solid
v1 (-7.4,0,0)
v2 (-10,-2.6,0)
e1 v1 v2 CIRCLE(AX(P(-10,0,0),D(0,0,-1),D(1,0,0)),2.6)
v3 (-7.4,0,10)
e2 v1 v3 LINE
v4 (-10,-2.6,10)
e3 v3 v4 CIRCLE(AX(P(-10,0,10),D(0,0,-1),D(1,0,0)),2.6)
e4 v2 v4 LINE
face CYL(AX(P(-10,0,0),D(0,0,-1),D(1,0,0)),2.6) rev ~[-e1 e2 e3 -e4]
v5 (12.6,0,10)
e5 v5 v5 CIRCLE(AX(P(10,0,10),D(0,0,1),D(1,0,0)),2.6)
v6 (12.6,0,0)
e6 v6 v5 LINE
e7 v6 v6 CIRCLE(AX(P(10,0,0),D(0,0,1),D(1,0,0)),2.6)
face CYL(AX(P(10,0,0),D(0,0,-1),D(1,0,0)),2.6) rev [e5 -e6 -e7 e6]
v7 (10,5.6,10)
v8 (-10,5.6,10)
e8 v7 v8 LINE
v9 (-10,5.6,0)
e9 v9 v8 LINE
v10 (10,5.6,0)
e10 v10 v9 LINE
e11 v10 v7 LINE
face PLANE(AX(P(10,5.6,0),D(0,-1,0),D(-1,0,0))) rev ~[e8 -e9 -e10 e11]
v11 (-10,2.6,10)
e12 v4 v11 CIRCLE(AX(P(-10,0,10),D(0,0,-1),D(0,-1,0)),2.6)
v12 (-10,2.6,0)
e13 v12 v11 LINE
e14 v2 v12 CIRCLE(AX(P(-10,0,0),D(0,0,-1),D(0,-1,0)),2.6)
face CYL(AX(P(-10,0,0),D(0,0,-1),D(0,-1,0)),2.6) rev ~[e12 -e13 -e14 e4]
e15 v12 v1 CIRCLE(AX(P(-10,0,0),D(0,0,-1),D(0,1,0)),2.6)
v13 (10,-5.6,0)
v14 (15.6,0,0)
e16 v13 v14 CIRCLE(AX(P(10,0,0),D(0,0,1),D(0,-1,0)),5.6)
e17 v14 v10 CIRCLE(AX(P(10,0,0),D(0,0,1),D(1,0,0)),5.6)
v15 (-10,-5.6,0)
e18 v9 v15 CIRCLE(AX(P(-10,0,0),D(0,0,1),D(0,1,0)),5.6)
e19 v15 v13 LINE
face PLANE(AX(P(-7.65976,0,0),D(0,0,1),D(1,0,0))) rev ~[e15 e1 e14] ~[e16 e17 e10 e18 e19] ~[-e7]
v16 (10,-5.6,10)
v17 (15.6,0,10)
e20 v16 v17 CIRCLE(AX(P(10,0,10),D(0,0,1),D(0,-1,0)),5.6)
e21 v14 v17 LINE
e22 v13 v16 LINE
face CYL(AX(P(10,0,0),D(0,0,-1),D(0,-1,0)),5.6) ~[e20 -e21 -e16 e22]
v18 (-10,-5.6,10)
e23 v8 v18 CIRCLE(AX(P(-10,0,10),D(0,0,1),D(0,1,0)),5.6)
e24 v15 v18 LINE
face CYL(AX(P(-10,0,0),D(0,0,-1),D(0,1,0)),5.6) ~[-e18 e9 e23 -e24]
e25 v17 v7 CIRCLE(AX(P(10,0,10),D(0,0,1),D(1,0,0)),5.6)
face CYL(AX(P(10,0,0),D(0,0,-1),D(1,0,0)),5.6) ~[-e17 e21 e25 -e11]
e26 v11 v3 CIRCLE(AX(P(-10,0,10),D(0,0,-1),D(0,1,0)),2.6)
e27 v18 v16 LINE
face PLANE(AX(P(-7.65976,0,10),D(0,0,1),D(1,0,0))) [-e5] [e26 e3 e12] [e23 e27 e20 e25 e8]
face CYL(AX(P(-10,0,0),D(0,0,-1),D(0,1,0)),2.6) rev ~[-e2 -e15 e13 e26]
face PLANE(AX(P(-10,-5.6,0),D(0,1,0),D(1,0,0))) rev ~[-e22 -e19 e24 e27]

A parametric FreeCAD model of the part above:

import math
import FreeCAD as App
import Part
import Sketcher
from FreeCAD import Vector
Q = App.Units.Quantity

doc = App.newDocument("Part")
body = doc.addObject("PartDesign::Body", "Body")

sketch1 = doc.addObject("Sketcher::SketchObject", "Sketch")
body.addObject(sketch1)
sketch1.AttachmentSupport = (doc.XY_Plane, [""])
sketch1.MapMode = "FlatFace"
sketch1.addGeometry(Part.ArcOfCircle(Part.Circle(Vector(-10, 0, 0), Vector(0, 0, 1), 5.6), math.radians(90), math.radians(270)), False)
sketch1.addGeometry(Part.LineSegment(Vector(-10, -5.6, 0), Vector(10, -5.6, 0)), False)
sketch1.addGeometry(Part.ArcOfCircle(Part.Circle(Vector(10, 0, 0), Vector(0, 0, 1), 5.6), math.radians(-90), math.radians(0)), False)
sketch1.addGeometry(Part.ArcOfCircle(Part.Circle(Vector(10, 0, 0), Vector(0, 0, 1), 5.6), math.radians(0), math.radians(90)), False)
sketch1.addGeometry(Part.LineSegment(Vector(10, 5.6, 0), Vector(-10, 5.6, 0)), False)
sketch1.addGeometry(Part.ArcOfCircle(Part.Circle(Vector(-10, 0, 0), Vector(0, 0, 1), 2.6), math.radians(0), math.radians(90)), False)
sketch1.addGeometry(Part.ArcOfCircle(Part.Circle(Vector(-10, 0, 0), Vector(0, 0, 1), 2.6), math.radians(-90), math.radians(0)), False)
sketch1.addGeometry(Part.ArcOfCircle(Part.Circle(Vector(-10, 0, 0), Vector(0, 0, 1), 2.6), math.radians(90), math.radians(270)), False)
sketch1.addGeometry(Part.Circle(Vector(10, 0, 0), Vector(0, 0, 1), 2.6), False)
sketch1.addConstraint(Sketcher.Constraint("Tangent", 0, 2, 1, 1))
sketch1.addConstraint(Sketcher.Constraint("Tangent", 1, 2, 2, 1))
sketch1.addConstraint(Sketcher.Constraint("Tangent", 2, 2, 3, 1))
sketch1.addConstraint(Sketcher.Constraint("Tangent", 3, 2, 4, 1))
sketch1.addConstraint(Sketcher.Constraint("Tangent", 4, 2, 0, 1))
sketch1.addConstraint(Sketcher.Constraint("Tangent", 5, 1, 6, 2))
sketch1.addConstraint(Sketcher.Constraint("Tangent", 6, 1, 7, 2))
sketch1.addConstraint(Sketcher.Constraint("Tangent", 7, 1, 5, 2))
sketch1.addConstraint(Sketcher.Constraint("Horizontal", 1))
sketch1.addConstraint(Sketcher.Constraint("Horizontal", 4))
sketch1.addConstraint(Sketcher.Constraint("Coincident", 5, 3, 0, 3))
sketch1.addConstraint(Sketcher.Constraint("Coincident", 8, 3, 2, 3))
sketch1.addConstraint(Sketcher.Constraint("Equal", 0, 2))
sketch1.addConstraint(Sketcher.Constraint("Equal", 7, 8))
sketch1.addConstraint(Sketcher.Constraint("Symmetric", 0, 3, 2, 3, -1, 1))
sketch1.addConstraint(Sketcher.Constraint("PointOnObject", 2, 2, -1))
sketch1.addConstraint(Sketcher.Constraint("PointOnObject", 5, 1, -1))
sketch1.addConstraint(Sketcher.Constraint("Vertical", 4, 2, 6, 1))
sketch1.addConstraint(Sketcher.Constraint("Vertical", 6, 1, 7, 1))
sketch1.addConstraint(Sketcher.Constraint("Diameter", 8, Q("5.2 mm")))
sketch1.addConstraint(Sketcher.Constraint("Radius", 0, Q("5.6 mm")))
sketch1.addConstraint(Sketcher.Constraint("DistanceX", 1, 1, 1, 2, Q("20 mm")))
pad1 = doc.addObject("PartDesign::Pad", "Pad")
body.addObject(pad1)
pad1.Profile = sketch1
pad1.Length = 10

doc.recompute()
